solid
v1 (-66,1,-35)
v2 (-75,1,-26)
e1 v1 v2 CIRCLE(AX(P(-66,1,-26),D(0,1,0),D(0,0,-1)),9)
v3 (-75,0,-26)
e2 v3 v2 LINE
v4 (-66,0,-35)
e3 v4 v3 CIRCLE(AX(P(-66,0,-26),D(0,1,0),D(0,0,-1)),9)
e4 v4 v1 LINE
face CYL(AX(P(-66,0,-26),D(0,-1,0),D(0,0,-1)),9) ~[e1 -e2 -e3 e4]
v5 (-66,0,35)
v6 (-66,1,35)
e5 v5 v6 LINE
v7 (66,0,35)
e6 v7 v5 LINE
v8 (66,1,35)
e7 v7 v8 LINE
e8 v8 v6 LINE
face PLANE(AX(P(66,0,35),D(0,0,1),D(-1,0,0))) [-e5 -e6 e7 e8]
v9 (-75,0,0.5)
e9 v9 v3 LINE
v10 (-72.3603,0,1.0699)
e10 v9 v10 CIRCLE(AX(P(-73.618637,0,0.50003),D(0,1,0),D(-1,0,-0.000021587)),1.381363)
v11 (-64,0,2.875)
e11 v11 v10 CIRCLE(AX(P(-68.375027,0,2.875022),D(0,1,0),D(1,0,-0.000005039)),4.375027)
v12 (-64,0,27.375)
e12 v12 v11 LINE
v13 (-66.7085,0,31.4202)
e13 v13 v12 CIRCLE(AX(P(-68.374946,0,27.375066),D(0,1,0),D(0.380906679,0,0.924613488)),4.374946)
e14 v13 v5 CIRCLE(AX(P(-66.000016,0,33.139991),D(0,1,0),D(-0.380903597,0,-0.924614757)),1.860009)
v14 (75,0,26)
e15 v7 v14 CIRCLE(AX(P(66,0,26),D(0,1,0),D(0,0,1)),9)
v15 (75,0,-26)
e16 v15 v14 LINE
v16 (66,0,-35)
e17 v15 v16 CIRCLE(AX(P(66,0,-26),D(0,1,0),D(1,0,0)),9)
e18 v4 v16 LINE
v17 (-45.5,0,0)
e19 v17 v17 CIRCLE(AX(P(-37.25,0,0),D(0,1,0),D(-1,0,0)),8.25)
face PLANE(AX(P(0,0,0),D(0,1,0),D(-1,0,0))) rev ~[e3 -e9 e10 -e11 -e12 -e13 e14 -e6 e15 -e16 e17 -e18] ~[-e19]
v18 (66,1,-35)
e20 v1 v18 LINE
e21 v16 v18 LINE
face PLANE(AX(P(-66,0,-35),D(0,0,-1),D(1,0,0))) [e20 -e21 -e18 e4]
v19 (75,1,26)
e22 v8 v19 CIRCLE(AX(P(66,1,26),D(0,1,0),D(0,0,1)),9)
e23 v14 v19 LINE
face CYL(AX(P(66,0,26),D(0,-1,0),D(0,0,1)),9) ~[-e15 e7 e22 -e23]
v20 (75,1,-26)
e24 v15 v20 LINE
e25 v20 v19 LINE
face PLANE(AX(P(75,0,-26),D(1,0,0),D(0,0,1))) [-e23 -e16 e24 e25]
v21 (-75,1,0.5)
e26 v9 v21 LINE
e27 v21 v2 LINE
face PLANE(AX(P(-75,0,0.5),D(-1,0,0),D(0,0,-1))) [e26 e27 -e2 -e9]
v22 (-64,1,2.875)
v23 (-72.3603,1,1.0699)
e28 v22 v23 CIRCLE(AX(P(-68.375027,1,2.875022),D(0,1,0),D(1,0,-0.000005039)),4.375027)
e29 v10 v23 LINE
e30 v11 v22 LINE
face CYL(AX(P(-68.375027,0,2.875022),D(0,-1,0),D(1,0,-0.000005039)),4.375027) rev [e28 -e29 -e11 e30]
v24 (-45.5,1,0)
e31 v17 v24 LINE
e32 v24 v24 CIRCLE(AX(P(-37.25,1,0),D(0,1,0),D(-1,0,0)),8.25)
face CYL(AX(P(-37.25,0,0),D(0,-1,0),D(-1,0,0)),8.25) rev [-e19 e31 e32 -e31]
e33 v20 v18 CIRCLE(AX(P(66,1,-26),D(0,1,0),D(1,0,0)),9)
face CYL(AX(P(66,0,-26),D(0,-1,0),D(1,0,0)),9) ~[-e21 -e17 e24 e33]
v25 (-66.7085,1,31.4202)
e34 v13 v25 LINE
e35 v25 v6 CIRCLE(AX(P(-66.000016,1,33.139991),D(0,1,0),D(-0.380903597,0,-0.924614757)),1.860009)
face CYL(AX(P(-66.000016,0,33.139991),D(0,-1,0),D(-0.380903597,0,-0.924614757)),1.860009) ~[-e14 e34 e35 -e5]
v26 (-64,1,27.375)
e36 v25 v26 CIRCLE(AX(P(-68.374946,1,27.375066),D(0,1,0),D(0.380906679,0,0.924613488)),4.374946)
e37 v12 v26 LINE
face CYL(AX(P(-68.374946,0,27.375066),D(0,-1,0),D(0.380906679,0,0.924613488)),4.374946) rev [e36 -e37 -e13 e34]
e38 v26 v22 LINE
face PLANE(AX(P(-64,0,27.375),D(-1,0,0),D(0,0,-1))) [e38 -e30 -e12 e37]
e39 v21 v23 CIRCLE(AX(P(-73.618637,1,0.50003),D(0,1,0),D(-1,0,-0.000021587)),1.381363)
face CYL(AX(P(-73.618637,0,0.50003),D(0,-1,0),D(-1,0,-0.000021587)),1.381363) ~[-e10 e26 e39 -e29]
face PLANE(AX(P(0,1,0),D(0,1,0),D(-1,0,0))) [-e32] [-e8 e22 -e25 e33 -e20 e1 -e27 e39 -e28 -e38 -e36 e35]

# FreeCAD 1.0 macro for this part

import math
import FreeCAD as App
import Part
import Sketcher
Q = App.Units.Quantity

doc = App.newDocument("Part")
body = doc.addObject("PartDesign::Body", "Body")

# Sketch on XZ plane
sketch1 = body.newObject("Sketcher::SketchObject", "Sketch")
sketch1.AttachmentSupport = (doc.getObject("XZ_Plane"), [""])
sketch1.MapMode = "FlatFace"
sketch1.addGeometry([
    Part.LineSegment(App.Vector(66, -35, 0), App.Vector(-66, -35, 0)),  # 0
    Part.ArcOfCircle(Part.Circle(App.Vector(-66, -26, 0), App.Vector(0, 0, 1), 9), math.radians(180), math.radians(270)),  # 1
    Part.LineSegment(App.Vector(-75, -26, 0), App.Vector(-75, 0.5, 0)),  # 2
    Part.ArcOfCircle(Part.Circle(App.Vector(-73.6, 0.5, 0), App.Vector(0, 0, 1), 1.4), math.radians(24), math.radians(180)),  # 3
    Part.ArcOfCircle(Part.Circle(App.Vector(-68.4, 2.9, 0), App.Vector(0, 0, 1), 4.4), math.radians(-156), math.radians(0)),  # 4
    Part.LineSegment(App.Vector(-64, 2.9, 0), App.Vector(-64, 27.4, 0)),  # 5
    Part.ArcOfCircle(Part.Circle(App.Vector(-68.4, 27.4, 0), App.Vector(0, 0, 1), 4.4), math.radians(0), math.radians(68)),  # 6
    Part.ArcOfCircle(Part.Circle(App.Vector(-66, 33.1, 0), App.Vector(0, 0, 1), 1.9), math.radians(90), math.radians(248)),  # 7
    Part.LineSegment(App.Vector(-66, 35, 0), App.Vector(66, 35, 0)),  # 8
    Part.ArcOfCircle(Part.Circle(App.Vector(66, 26, 0), App.Vector(0, 0, 1), 9), math.radians(0), math.radians(90)),  # 9
    Part.LineSegment(App.Vector(75, 26, 0), App.Vector(75, -26, 0)),  # 10
    Part.ArcOfCircle(Part.Circle(App.Vector(66, -26, 0), App.Vector(0, 0, 1), 9), math.radians(-90), math.radians(0)),  # 11
    Part.Circle(App.Vector(-37.2, 0, 0), App.Vector(0, 0, 1), 8.2),  # 12
], False)
sketch1.addConstraint([
    Sketcher.Constraint("Tangent", 0, 2, 1, 2),
    Sketcher.Constraint("Tangent", 1, 1, 2, 1),
    Sketcher.Constraint("Tangent", 2, 2, 3, 2),
    Sketcher.Constraint("Tangent", 3, 1, 4, 1),
    Sketcher.Constraint("Tangent", 4, 2, 5, 1),
    Sketcher.Constraint("Tangent", 5, 2, 6, 1),
    Sketcher.Constraint("Tangent", 6, 2, 7, 2),
    Sketcher.Constraint("Tangent", 7, 1, 8, 1),
    Sketcher.Constraint("Tangent", 8, 2, 9, 2),
    Sketcher.Constraint("Tangent", 9, 1, 10, 1),
    Sketcher.Constraint("Tangent", 10, 2, 11, 2),
    Sketcher.Constraint("Tangent", 11, 1, 0, 1),
    Sketcher.Constraint("Horizontal", 0),
    Sketcher.Constraint("Vertical", 2),
    Sketcher.Constraint("Vertical", 5),
    Sketcher.Constraint("Horizontal", 8),
    Sketcher.Constraint("Vertical", 10),
    Sketcher.Constraint("Equal", 4, 6),
    Sketcher.Constraint("Equal", 1, 9),
    Sketcher.Constraint("Equal", 9, 11),
    Sketcher.Constraint("Symmetric", 1, 3, 9, 3, -1, 1),
    Sketcher.Constraint("PointOnObject", 12, 3, -1),
    Sketcher.Constraint("Vertical", 1, 3, 7, 3),
    Sketcher.Constraint("Radius", 1, Q("9 mm")),
    Sketcher.Constraint("Diameter", 12, Q("16.5 mm")),
    Sketcher.Constraint("Radius", 4, Q("4.375 mm")),
    Sketcher.Constraint("DistanceX", 2, 2, 4, 2, Q("11 mm")),
    Sketcher.Constraint("DistanceY", 11, 1, 8, 2, Q("70 mm")),
    Sketcher.Constraint("DistanceX", 0, 2, 0, 1, Q("132 mm")),
    Sketcher.Constraint("Radius", 7, Q("1.86 mm")),
    Sketcher.Constraint("DistanceY", 2, 1, 2, 2, Q("26.5 mm")),
    Sketcher.Constraint("DistanceY", 5, 1, 5, 2, Q("24.5 mm")),
    Sketcher.Constraint("DistanceX", 12, 3, -1, 1, Q("37.25 mm")),
])
pad1 = body.newObject("PartDesign::Pad", "Pad")
pad1.Profile = sketch1
pad1.Length = 1
pad1.Reversed = True

doc.recompute()
